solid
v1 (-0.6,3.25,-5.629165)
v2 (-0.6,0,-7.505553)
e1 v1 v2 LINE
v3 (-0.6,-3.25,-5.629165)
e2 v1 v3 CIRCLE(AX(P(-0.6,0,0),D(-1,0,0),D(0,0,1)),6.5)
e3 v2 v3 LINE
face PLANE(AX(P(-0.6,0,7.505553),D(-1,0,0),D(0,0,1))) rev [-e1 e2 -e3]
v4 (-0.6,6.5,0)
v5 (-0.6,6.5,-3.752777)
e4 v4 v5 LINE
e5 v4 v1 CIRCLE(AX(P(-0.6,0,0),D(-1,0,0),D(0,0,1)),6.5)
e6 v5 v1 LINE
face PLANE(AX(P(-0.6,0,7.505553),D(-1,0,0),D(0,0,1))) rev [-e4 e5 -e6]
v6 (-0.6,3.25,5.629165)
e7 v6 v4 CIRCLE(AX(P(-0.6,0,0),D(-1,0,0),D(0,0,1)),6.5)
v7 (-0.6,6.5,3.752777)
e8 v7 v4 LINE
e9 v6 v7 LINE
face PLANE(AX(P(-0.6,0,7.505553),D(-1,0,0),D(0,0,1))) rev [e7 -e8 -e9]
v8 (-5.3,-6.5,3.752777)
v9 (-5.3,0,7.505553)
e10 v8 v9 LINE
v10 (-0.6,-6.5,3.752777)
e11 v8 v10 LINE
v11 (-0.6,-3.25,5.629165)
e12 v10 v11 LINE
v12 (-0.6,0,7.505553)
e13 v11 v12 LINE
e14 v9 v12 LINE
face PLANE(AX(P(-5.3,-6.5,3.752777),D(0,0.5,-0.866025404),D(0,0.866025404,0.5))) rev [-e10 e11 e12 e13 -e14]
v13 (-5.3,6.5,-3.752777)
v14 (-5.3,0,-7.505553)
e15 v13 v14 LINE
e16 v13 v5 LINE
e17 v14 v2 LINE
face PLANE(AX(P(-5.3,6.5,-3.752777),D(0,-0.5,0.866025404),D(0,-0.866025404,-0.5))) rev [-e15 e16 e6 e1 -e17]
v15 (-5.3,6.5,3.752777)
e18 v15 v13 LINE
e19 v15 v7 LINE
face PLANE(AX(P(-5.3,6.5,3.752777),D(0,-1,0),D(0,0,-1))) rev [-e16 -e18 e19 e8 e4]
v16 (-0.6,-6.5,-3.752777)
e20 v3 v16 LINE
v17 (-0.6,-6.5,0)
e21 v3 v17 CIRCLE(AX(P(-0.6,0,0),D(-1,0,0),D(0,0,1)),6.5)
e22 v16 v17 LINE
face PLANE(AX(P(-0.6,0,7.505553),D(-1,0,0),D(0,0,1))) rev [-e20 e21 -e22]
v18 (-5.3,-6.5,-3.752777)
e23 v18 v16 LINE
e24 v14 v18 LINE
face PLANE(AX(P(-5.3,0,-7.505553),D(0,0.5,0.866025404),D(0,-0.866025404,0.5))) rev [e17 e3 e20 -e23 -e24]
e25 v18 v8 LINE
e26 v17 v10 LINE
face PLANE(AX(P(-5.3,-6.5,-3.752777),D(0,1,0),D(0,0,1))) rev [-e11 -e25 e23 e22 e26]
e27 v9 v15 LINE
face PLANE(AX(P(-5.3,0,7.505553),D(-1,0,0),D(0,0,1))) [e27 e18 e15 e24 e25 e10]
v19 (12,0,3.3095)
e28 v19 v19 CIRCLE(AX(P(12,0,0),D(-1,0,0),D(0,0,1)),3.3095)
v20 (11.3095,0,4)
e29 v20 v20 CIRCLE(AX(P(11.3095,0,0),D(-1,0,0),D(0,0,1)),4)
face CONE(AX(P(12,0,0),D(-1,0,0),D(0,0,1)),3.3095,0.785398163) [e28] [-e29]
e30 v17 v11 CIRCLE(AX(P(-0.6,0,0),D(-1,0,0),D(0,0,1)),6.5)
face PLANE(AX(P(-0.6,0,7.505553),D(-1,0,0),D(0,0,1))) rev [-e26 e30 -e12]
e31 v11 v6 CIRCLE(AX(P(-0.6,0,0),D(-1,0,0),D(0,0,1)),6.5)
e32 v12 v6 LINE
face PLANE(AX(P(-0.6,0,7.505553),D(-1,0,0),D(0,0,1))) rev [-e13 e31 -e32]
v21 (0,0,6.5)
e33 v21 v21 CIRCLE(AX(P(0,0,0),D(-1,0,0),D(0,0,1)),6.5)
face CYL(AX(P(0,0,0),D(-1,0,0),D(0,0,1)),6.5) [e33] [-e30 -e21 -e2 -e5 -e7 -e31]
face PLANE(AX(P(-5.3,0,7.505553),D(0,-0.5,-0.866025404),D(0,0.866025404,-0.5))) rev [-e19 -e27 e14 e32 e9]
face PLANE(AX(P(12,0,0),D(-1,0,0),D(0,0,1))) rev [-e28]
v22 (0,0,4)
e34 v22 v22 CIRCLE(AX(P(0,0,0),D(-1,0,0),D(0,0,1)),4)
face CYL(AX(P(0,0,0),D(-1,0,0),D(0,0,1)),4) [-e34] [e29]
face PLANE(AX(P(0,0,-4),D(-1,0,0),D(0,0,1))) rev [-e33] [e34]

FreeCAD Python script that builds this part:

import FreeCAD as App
import Part
import Sketcher

V = App.Vector
Q = App.Units.Quantity


def add_polygon(sketch, points):
    """Adds a closed chain of lines whose ends are joined by coincident constraints."""
    first, n = sketch.GeometryCount, len(points)
    for a, b in zip(points, points[1:] + points[:1]):
        sketch.addGeometry(Part.LineSegment(App.Vector(*a, 0), App.Vector(*b, 0)), False)
    for i in range(n):
        sketch.addConstraint(Sketcher.Constraint("Coincident", first + i, 2, first + (i + 1) % n, 1))

doc = App.newDocument("Part")
params = doc.addObject("Spreadsheet::Sheet", "Params")
for row, (alias, value) in enumerate([
    ("sketch1_width", "0.6 mm"),
    ("sketch1_width2", "12.6 mm"),
    ("sketch1_height", "2.5 mm"),
    ("sketch1_height2", "6.5 mm"),
    ("revolution_angle", "360 deg"),
    ("pad1_length", "4.7 mm"),
], start=1):
    params.set(f"A{row}", alias)
    params.set(f"B{row}", "=" + value)
    params.setAlias(f"B{row}", alias)

body = doc.addObject("PartDesign::Body", "Body")

# Sketch on XZ plane
sketch1 = doc.addObject("Sketcher::SketchObject", "Sketch")
body.addObject(sketch1)
sketch1.AttachmentSupport = (doc.XZ_Plane, [""])
sketch1.MapMode = "FlatFace"
add_polygon(sketch1, [(12, -3.3), (11.3, -4), (0, -4), (0, -6.5), (-0.6, -6.5), (-0.6, 0), (12, 0)])  # lines 0-6
sketch1.addConstraint(Sketcher.Constraint("Horizontal", 1))
sketch1.addConstraint(Sketcher.Constraint("Vertical", 2))
sketch1.addConstraint(Sketcher.Constraint("Horizontal", 3))
sketch1.addConstraint(Sketcher.Constraint("Vertical", 4))
sketch1.addConstraint(Sketcher.Constraint("Horizontal", 5))
sketch1.addConstraint(Sketcher.Constraint("Vertical", 6))
sketch1.addConstraint(Sketcher.Constraint("PointOnObject", 1, 2, -2))
sketch1.addConstraint(Sketcher.Constraint("PointOnObject", 4, 2, -1))
sketch1.addConstraint(Sketcher.Constraint("Angle", 0, Q("-135 deg")))
sketch1.addConstraint(Sketcher.Constraint("DistanceX", 3, 2, 3, 1, 0.6))
sketch1.addConstraint(Sketcher.Constraint("DistanceX", 5, 1, 5, 2, 12.6))
sketch1.addConstraint(Sketcher.Constraint("DistanceY", 2, 2, 2, 1, 2.5))
sketch1.addConstraint(Sketcher.Constraint("DistanceY", 4, 1, 4, 2, 6.5))
sketch1.addConstraint(Sketcher.Constraint("DistanceX", 1, 2, 1, 1, 11.3095))
sketch1.setExpression("Constraints[16]", "Params.sketch1_width")
sketch1.setExpression("Constraints[17]", "Params.sketch1_width2")
sketch1.setExpression("Constraints[18]", "Params.sketch1_height")
sketch1.setExpression("Constraints[19]", "Params.sketch1_height2")
revolution = doc.addObject("PartDesign::Revolution", "Revolution")
body.addObject(revolution)
revolution.Profile = sketch1
revolution.ReferenceAxis = (sketch1, ["H_Axis"])
revolution.setExpression("Angle", "Params.revolution_angle")

# Sketch on YZ plane
sketch2 = doc.addObject("Sketcher::SketchObject", "Sketch001")
body.addObject(sketch2)
sketch2.AttachmentSupport = (doc.YZ_Plane, [""])
sketch2.MapMode = "FlatFace"
sketch2.AttachmentOffset = App.Placement(V(0, 0, -0.6), App.Rotation())
add_polygon(sketch2, [(0, 8), (6, 4), (6, -4), (0, -8), (-6, -4), (-6, 4)])  # lines 0-5
sketch2.addConstraint(Sketcher.Constraint("Vertical", 1))
sketch2.addConstraint(Sketcher.Constraint("Vertical", 4))
sketch2.addConstraint(Sketcher.Constraint("Symmetric", 0, 2, 3, 2, -1, 1))
sketch2.addConstraint(Sketcher.Constraint("Symmetric", 2, 2, 5, 2, -1, 1))
sketch2.addConstraint(Sketcher.Constraint("PointOnObject", 2, 2, -2))
sketch2.addConstraint(Sketcher.Constraint("Parallel", 2, 5))
sketch2.addConstraint(Sketcher.Constraint("Horizontal", 1, 2, 3, 2))
sketch2.addConstraint(Sketcher.Constraint("Angle", 0, Q("-30 deg")))
sketch2.addConstraint(Sketcher.Constraint("DistanceX", 3, 2, 1, 2, 13.0))
sketch2.addConstraint(Sketcher.Constraint("DistanceY", 1, 2, 1, 1, 7.505554))
pad1 = doc.addObject("PartDesign::Pad", "Pad")
body.addObject(pad1)
pad1.Profile = sketch2
pad1.setExpression("Length", "Params.pad1_length")
pad1.Reversed = True

doc.recompute()
